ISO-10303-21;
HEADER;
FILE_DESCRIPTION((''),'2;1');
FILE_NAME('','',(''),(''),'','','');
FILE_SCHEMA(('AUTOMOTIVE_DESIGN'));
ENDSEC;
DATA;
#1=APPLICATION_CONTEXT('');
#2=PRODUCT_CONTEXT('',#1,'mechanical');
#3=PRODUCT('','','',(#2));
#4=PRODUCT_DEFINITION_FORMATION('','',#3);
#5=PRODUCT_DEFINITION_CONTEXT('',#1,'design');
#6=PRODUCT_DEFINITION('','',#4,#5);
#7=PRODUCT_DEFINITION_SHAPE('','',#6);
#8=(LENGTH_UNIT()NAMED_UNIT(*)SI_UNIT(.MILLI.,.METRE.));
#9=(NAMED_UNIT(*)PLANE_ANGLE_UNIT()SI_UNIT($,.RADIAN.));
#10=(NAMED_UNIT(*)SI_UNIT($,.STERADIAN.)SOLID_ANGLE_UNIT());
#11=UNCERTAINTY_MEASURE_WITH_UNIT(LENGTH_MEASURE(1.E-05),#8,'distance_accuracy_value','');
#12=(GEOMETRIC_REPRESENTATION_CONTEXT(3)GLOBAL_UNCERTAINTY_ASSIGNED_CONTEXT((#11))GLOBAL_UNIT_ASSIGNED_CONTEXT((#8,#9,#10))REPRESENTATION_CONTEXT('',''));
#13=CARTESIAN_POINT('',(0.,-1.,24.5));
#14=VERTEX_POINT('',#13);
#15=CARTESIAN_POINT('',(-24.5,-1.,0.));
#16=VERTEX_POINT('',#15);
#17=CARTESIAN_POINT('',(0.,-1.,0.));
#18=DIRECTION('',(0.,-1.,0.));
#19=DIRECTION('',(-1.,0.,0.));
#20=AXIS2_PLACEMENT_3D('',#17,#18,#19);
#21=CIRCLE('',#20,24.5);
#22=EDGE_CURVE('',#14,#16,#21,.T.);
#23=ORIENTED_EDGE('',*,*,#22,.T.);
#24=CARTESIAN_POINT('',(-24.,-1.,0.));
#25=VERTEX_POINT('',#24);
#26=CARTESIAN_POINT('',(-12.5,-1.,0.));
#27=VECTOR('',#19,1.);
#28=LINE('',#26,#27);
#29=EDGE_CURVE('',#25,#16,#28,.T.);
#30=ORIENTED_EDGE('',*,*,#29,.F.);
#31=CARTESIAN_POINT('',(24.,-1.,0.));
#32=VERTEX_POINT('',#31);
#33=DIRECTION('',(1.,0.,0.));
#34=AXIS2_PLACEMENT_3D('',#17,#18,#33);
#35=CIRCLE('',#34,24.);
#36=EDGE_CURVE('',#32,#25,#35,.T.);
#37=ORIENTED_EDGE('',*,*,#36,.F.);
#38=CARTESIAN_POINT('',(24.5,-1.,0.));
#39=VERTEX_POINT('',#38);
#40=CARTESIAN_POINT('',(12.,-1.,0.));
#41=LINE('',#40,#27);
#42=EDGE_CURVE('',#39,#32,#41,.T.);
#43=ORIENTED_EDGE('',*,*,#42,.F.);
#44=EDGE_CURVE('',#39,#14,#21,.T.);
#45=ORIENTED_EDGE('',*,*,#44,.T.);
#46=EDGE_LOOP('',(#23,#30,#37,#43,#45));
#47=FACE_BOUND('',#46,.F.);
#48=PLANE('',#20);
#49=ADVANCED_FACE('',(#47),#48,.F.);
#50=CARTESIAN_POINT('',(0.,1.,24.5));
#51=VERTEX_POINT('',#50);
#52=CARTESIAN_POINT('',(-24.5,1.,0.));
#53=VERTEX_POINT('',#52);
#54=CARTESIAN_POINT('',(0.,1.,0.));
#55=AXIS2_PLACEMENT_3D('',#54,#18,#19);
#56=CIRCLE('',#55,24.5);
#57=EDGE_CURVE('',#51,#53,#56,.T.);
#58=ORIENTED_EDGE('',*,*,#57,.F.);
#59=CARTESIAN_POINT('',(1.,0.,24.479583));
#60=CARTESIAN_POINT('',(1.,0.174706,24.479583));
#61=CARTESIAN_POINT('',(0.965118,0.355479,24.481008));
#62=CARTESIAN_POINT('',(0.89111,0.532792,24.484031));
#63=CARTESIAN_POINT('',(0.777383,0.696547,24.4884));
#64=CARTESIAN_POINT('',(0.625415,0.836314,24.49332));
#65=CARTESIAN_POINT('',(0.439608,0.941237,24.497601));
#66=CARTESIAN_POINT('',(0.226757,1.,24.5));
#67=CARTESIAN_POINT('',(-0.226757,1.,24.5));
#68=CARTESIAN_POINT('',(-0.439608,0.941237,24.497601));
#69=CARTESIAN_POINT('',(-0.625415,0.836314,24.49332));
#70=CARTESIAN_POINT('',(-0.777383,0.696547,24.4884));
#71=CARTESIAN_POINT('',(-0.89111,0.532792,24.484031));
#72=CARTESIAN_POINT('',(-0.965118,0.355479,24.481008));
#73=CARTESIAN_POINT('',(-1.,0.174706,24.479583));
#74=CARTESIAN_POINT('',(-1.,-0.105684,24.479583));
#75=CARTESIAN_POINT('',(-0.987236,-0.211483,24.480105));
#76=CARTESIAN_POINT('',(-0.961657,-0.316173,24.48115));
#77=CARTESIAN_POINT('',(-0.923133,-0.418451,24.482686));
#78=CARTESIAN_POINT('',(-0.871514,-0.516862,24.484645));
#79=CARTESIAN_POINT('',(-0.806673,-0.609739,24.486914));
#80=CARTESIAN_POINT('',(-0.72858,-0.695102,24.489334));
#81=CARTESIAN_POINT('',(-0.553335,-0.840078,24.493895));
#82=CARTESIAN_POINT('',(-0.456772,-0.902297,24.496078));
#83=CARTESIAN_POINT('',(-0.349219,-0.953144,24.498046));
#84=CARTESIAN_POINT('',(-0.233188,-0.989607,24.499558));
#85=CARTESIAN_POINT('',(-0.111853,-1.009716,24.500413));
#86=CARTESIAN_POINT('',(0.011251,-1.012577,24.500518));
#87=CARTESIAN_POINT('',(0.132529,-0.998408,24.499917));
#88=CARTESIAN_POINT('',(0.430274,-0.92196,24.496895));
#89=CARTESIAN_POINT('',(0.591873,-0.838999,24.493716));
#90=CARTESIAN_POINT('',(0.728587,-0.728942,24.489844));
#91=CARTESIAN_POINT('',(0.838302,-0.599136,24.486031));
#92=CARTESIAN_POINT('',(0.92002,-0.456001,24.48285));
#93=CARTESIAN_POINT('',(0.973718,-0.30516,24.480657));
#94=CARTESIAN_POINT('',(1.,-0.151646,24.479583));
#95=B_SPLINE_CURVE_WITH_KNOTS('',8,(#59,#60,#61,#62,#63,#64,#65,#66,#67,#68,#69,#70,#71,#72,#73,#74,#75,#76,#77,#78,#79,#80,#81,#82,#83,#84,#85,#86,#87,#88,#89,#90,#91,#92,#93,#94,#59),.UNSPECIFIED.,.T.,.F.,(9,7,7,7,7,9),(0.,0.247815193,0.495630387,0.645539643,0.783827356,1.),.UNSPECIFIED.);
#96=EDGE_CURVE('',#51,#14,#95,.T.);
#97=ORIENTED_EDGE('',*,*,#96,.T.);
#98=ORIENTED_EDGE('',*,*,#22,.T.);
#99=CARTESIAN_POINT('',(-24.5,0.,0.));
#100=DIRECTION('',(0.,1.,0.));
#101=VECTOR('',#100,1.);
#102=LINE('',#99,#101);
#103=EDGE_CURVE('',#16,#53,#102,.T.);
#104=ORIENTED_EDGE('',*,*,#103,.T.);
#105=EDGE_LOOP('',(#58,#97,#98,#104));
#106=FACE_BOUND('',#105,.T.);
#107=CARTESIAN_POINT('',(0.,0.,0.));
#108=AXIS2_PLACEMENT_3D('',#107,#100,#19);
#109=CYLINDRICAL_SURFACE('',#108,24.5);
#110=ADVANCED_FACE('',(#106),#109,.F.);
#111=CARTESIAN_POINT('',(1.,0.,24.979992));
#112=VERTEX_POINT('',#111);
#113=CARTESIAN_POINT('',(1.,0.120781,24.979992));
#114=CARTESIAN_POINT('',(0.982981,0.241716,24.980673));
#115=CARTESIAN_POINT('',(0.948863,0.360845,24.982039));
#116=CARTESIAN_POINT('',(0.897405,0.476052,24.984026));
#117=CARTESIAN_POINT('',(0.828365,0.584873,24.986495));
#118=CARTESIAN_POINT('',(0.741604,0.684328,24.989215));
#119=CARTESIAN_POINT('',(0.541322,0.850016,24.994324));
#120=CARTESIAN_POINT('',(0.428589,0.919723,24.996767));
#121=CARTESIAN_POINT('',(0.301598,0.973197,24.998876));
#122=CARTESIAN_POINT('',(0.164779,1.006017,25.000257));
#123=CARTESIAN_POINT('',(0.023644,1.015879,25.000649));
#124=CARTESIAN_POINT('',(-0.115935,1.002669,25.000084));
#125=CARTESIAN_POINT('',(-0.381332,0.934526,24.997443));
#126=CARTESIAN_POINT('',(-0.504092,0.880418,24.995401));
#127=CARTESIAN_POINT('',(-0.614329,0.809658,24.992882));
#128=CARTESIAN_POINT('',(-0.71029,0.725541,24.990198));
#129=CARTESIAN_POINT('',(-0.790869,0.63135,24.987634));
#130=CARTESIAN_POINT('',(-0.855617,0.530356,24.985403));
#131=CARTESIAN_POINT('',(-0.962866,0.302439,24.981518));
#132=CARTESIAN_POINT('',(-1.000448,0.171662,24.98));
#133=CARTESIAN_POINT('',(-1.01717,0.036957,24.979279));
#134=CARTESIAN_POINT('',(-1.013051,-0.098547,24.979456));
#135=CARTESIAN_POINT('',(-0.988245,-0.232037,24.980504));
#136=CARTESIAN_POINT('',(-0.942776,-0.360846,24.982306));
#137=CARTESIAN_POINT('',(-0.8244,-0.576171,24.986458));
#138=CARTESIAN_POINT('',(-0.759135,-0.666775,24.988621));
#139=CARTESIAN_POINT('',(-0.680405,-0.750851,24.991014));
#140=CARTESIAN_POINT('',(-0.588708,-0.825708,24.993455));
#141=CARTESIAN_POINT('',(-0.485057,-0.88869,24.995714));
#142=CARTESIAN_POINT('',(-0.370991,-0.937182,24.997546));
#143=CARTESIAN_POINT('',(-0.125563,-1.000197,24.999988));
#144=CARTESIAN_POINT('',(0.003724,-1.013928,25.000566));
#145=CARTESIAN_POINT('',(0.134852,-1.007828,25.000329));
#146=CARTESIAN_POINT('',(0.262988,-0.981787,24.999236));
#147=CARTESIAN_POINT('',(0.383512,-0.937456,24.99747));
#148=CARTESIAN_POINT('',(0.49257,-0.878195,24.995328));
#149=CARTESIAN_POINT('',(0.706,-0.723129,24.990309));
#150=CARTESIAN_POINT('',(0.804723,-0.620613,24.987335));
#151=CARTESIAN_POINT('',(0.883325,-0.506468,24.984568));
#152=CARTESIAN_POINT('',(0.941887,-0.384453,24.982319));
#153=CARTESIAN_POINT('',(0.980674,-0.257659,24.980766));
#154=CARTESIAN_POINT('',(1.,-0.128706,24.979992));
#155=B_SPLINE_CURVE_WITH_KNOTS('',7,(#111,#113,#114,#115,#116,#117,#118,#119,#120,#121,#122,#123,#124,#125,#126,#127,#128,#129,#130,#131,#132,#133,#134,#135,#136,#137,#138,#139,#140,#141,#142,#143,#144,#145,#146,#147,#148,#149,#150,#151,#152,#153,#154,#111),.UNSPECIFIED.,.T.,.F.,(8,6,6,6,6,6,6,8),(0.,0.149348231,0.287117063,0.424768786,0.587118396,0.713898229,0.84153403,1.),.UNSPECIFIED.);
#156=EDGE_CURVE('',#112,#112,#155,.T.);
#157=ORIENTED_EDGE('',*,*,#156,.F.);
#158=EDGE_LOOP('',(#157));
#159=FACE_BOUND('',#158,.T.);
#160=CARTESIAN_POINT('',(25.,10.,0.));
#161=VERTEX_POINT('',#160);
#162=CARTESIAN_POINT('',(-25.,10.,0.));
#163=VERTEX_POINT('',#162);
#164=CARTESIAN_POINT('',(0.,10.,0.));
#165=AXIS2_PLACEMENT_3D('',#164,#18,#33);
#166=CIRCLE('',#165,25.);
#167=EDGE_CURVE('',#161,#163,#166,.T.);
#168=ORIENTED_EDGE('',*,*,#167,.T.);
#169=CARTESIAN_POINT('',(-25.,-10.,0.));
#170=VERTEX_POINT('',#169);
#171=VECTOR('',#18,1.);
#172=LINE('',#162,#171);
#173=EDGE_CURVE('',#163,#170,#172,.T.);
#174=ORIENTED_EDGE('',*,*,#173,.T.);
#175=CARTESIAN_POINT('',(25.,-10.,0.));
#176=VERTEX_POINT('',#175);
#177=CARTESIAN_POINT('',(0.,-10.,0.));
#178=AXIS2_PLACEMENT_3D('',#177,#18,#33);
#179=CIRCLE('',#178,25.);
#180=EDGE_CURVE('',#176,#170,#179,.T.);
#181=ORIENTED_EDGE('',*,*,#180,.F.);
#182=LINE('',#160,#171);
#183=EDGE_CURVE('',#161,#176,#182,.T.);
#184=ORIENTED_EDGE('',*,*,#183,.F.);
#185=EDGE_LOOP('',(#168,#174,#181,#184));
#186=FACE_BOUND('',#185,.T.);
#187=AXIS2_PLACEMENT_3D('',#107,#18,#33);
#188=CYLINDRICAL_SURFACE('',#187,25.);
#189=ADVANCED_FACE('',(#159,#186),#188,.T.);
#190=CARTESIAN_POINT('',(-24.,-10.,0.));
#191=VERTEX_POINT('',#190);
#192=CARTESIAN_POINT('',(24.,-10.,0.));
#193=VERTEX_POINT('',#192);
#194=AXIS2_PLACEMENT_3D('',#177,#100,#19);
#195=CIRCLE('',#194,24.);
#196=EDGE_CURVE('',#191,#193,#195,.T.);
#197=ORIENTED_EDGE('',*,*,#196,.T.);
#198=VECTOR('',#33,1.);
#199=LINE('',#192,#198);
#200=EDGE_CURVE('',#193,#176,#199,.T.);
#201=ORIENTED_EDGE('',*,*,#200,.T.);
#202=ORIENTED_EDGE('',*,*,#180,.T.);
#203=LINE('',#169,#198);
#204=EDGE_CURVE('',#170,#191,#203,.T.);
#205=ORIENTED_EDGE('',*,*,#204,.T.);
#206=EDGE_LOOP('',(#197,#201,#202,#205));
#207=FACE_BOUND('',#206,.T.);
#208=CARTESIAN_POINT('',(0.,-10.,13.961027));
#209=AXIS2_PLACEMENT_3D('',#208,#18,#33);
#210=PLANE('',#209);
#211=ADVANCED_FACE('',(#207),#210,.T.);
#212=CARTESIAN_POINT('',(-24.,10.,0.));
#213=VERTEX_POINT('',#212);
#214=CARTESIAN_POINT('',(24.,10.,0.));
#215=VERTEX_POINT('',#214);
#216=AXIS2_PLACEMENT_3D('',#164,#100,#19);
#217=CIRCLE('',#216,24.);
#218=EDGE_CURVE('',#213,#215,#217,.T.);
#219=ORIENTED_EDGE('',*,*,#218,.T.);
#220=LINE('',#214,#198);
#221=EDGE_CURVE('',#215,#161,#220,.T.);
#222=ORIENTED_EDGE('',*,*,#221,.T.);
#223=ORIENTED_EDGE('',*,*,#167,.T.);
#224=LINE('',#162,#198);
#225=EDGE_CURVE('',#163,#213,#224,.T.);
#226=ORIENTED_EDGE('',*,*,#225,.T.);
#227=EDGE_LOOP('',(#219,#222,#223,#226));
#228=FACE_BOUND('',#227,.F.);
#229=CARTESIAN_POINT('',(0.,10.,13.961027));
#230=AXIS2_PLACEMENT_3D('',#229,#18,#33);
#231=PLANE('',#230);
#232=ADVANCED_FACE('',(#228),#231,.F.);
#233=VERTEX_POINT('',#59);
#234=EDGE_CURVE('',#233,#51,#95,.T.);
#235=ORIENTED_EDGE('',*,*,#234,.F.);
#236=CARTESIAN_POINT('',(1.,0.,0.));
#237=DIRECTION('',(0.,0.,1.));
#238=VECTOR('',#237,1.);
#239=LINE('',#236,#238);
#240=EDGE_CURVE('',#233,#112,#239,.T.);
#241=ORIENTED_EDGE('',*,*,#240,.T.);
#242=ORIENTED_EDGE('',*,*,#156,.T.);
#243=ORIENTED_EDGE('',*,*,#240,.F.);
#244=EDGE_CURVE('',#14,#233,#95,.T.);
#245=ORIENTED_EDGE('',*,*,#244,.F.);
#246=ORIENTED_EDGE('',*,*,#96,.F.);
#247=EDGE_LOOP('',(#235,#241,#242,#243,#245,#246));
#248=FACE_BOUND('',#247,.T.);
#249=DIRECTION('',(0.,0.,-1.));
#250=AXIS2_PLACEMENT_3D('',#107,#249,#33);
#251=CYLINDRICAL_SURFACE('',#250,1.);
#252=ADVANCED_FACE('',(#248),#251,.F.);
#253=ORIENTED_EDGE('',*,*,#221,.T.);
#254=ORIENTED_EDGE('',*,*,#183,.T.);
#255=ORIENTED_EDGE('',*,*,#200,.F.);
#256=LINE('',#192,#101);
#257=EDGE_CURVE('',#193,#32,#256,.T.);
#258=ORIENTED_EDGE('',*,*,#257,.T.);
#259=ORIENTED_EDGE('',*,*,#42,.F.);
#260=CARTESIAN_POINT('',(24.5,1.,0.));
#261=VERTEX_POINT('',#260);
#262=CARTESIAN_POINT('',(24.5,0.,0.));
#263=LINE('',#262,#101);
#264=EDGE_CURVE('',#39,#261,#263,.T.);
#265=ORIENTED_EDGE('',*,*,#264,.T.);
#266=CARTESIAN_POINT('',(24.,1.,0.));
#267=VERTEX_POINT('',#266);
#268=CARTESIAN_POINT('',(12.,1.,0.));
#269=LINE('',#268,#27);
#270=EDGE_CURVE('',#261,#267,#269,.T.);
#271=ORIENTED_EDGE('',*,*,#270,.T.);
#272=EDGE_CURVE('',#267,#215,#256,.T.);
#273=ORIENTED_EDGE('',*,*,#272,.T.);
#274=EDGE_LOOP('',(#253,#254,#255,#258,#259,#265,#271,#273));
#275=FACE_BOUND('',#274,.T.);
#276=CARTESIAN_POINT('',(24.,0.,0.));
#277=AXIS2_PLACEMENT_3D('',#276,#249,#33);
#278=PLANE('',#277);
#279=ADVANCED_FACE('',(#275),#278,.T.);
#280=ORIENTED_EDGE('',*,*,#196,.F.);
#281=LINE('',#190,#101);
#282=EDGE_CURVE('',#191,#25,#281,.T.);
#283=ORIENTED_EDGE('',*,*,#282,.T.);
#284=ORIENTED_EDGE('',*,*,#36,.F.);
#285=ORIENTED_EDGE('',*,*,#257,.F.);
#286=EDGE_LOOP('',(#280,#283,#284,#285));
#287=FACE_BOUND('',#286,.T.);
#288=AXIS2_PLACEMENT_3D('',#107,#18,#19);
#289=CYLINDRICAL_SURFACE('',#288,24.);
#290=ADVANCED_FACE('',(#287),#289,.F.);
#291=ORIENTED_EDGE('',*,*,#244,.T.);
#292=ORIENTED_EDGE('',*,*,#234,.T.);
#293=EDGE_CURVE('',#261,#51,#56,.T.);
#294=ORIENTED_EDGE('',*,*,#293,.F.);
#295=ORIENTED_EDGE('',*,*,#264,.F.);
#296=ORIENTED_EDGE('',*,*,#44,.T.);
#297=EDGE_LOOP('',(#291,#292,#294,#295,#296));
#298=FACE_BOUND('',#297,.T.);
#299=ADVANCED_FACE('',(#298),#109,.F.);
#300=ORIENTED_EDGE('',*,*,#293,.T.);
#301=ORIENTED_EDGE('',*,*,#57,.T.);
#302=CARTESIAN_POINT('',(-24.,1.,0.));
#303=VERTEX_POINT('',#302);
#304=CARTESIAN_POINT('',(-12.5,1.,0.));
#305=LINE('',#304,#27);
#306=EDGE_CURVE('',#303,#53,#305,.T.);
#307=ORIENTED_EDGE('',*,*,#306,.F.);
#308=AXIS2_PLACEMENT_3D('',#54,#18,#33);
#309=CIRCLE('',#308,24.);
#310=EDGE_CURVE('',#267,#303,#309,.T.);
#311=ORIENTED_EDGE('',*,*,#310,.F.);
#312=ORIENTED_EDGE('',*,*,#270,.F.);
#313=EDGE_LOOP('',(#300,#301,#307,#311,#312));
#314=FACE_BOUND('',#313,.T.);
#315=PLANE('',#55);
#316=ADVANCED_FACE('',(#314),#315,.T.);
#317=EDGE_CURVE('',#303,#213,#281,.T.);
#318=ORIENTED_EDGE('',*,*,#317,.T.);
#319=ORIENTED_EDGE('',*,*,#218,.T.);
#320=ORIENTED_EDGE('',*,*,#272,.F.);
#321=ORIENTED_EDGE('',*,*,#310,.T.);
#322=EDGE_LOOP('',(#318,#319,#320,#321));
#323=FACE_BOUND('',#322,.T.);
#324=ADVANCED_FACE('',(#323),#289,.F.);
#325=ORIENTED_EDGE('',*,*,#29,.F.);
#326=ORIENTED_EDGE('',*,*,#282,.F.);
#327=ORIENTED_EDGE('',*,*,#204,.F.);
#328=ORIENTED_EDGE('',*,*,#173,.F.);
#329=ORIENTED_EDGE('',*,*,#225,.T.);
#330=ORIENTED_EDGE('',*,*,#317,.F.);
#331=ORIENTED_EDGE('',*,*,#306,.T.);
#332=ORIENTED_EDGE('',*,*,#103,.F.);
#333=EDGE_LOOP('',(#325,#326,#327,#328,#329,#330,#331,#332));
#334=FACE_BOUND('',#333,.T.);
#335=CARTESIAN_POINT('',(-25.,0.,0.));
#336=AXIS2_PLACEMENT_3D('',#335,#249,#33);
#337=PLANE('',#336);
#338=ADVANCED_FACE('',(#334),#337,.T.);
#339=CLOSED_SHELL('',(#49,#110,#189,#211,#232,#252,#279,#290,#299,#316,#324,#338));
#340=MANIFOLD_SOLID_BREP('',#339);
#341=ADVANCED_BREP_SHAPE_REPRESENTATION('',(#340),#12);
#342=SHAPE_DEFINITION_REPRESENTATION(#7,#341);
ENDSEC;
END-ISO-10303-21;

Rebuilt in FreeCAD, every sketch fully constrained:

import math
import FreeCAD as App
import Part
import Sketcher

doc = App.newDocument("Part")
body = doc.addObject("PartDesign::Body", "Body")

sketch1 = body.newObject("Sketcher::SketchObject", "Sketch")
sketch1.AttachmentSupport = (doc.getObject("XZ_Plane"), [""])
sketch1.MapMode = "FlatFace"
sketch1.addGeometry(Part.LineSegment(App.Vector(24, 0, 0), App.Vector(25, 0, 0)), False)
sketch1.addGeometry(Part.ArcOfCircle(Part.Circle(App.Vector(0, 0, 0), App.Vector(0, 0, 1), 25), math.radians(0), math.radians(180)), False)
sketch1.addGeometry(Part.LineSegment(App.Vector(-25, 0, 0), App.Vector(-24, 0, 0)), False)
sketch1.addGeometry(Part.ArcOfCircle(Part.Circle(App.Vector(0, 0, 0), App.Vector(0, 0, 1), 24), math.radians(0), math.radians(180)), False)
sketch1.addConstraint(Sketcher.Constraint("Coincident", 0, 2, 1, 1))
sketch1.addConstraint(Sketcher.Constraint("Coincident", 1, 2, 2, 1))
sketch1.addConstraint(Sketcher.Constraint("Coincident", 2, 2, 3, 2))
sketch1.addConstraint(Sketcher.Constraint("Coincident", 3, 1, 0, 1))
sketch1.addConstraint(Sketcher.Constraint("Horizontal", 0))
sketch1.addConstraint(Sketcher.Constraint("Horizontal", 2))
sketch1.addConstraint(Sketcher.Constraint("Coincident", 1, 3, -1, 1))
sketch1.addConstraint(Sketcher.Constraint("Coincident", 3, 3, -1, 1))
sketch1.addConstraint(Sketcher.Constraint("PointOnObject", 0, 2, -1))
sketch1.addConstraint(Sketcher.Constraint("PointOnObject", 1, 2, -1))
sketch1.addConstraint(Sketcher.Constraint("Radius", 1, 25.0))
sketch1.addConstraint(Sketcher.Constraint("Radius", 3, 24.0))
pad1 = body.newObject("PartDesign::Pad", "Pad")
pad1.Profile = sketch1
pad1.Length = 20
pad1.Midplane = True

sketch2 = body.newObject("Sketcher::SketchObject", "Sketch001")
sketch2.AttachmentSupport = (doc.getObject("XY_Plane"), [""])
sketch2.MapMode = "FlatFace"
sketch2.addGeometry(Part.LineSegment(App.Vector(-24.5, 1, 0), App.Vector(-24.5, -1, 0)), False)
sketch2.addGeometry(Part.LineSegment(App.Vector(-24.5, -1, 0), App.Vector(-24, -1, 0)), False)
sketch2.addGeometry(Part.LineSegment(App.Vector(-24, -1, 0), App.Vector(-24, 1, 0)), False)
sketch2.addGeometry(Part.LineSegment(App.Vector(-24, 1, 0), App.Vector(-24.5, 1, 0)), False)
sketch2.addConstraint(Sketcher.Constraint("Coincident", 0, 2, 1, 1))
sketch2.addConstraint(Sketcher.Constraint("Coincident", 1, 2, 2, 1))
sketch2.addConstraint(Sketcher.Constraint("Coincident", 2, 2, 3, 1))
sketch2.addConstraint(Sketcher.Constraint("Coincident", 3, 2, 0, 1))
sketch2.addConstraint(Sketcher.Constraint("Vertical", 0))
sketch2.addConstraint(Sketcher.Constraint("Horizontal", 1))
sketch2.addConstraint(Sketcher.Constraint("Vertical", 2))
sketch2.addConstraint(Sketcher.Constraint("Horizontal", 3))
sketch2.addConstraint(Sketcher.Constraint("DistanceY", 0, 2, 0, 1, 2.0))
sketch2.addConstraint(Sketcher.Constraint("DistanceX", 1, 1, 1, 2, 0.5))
sketch2.addConstraint(Sketcher.Constraint("DistanceY", 0, 2, -1, 1, 1.0))
sketch2.addConstraint(Sketcher.Constraint("DistanceX", 1, 2, -1, 1, 24.0))
groove = body.newObject("PartDesign::Groove", "Groove")
groove.Profile = sketch2
groove.ReferenceAxis = (sketch2, ["V_Axis"])
groove.Angle = 360

sketch3 = body.newObject("Sketcher::SketchObject", "Sketch002")
sketch3.AttachmentSupport = (doc.getObject("XY_Plane"), [""])
sketch3.MapMode = "FlatFace"
sketch3.addGeometry(Part.Circle(App.Vector(0, 0, 0), App.Vector(0, 0, 1), 1), False)
sketch3.addConstraint(Sketcher.Constraint("Coincident", 0, 3, -1, 1))
sketch3.addConstraint(Sketcher.Constraint("Diameter", 0, 2.0))
pocket1 = body.newObject("PartDesign::Pocket", "Pocket")
pocket1.Profile = sketch3
pocket1.Type = "ThroughAll"
pocket1.Reversed = True

doc.recompute()
